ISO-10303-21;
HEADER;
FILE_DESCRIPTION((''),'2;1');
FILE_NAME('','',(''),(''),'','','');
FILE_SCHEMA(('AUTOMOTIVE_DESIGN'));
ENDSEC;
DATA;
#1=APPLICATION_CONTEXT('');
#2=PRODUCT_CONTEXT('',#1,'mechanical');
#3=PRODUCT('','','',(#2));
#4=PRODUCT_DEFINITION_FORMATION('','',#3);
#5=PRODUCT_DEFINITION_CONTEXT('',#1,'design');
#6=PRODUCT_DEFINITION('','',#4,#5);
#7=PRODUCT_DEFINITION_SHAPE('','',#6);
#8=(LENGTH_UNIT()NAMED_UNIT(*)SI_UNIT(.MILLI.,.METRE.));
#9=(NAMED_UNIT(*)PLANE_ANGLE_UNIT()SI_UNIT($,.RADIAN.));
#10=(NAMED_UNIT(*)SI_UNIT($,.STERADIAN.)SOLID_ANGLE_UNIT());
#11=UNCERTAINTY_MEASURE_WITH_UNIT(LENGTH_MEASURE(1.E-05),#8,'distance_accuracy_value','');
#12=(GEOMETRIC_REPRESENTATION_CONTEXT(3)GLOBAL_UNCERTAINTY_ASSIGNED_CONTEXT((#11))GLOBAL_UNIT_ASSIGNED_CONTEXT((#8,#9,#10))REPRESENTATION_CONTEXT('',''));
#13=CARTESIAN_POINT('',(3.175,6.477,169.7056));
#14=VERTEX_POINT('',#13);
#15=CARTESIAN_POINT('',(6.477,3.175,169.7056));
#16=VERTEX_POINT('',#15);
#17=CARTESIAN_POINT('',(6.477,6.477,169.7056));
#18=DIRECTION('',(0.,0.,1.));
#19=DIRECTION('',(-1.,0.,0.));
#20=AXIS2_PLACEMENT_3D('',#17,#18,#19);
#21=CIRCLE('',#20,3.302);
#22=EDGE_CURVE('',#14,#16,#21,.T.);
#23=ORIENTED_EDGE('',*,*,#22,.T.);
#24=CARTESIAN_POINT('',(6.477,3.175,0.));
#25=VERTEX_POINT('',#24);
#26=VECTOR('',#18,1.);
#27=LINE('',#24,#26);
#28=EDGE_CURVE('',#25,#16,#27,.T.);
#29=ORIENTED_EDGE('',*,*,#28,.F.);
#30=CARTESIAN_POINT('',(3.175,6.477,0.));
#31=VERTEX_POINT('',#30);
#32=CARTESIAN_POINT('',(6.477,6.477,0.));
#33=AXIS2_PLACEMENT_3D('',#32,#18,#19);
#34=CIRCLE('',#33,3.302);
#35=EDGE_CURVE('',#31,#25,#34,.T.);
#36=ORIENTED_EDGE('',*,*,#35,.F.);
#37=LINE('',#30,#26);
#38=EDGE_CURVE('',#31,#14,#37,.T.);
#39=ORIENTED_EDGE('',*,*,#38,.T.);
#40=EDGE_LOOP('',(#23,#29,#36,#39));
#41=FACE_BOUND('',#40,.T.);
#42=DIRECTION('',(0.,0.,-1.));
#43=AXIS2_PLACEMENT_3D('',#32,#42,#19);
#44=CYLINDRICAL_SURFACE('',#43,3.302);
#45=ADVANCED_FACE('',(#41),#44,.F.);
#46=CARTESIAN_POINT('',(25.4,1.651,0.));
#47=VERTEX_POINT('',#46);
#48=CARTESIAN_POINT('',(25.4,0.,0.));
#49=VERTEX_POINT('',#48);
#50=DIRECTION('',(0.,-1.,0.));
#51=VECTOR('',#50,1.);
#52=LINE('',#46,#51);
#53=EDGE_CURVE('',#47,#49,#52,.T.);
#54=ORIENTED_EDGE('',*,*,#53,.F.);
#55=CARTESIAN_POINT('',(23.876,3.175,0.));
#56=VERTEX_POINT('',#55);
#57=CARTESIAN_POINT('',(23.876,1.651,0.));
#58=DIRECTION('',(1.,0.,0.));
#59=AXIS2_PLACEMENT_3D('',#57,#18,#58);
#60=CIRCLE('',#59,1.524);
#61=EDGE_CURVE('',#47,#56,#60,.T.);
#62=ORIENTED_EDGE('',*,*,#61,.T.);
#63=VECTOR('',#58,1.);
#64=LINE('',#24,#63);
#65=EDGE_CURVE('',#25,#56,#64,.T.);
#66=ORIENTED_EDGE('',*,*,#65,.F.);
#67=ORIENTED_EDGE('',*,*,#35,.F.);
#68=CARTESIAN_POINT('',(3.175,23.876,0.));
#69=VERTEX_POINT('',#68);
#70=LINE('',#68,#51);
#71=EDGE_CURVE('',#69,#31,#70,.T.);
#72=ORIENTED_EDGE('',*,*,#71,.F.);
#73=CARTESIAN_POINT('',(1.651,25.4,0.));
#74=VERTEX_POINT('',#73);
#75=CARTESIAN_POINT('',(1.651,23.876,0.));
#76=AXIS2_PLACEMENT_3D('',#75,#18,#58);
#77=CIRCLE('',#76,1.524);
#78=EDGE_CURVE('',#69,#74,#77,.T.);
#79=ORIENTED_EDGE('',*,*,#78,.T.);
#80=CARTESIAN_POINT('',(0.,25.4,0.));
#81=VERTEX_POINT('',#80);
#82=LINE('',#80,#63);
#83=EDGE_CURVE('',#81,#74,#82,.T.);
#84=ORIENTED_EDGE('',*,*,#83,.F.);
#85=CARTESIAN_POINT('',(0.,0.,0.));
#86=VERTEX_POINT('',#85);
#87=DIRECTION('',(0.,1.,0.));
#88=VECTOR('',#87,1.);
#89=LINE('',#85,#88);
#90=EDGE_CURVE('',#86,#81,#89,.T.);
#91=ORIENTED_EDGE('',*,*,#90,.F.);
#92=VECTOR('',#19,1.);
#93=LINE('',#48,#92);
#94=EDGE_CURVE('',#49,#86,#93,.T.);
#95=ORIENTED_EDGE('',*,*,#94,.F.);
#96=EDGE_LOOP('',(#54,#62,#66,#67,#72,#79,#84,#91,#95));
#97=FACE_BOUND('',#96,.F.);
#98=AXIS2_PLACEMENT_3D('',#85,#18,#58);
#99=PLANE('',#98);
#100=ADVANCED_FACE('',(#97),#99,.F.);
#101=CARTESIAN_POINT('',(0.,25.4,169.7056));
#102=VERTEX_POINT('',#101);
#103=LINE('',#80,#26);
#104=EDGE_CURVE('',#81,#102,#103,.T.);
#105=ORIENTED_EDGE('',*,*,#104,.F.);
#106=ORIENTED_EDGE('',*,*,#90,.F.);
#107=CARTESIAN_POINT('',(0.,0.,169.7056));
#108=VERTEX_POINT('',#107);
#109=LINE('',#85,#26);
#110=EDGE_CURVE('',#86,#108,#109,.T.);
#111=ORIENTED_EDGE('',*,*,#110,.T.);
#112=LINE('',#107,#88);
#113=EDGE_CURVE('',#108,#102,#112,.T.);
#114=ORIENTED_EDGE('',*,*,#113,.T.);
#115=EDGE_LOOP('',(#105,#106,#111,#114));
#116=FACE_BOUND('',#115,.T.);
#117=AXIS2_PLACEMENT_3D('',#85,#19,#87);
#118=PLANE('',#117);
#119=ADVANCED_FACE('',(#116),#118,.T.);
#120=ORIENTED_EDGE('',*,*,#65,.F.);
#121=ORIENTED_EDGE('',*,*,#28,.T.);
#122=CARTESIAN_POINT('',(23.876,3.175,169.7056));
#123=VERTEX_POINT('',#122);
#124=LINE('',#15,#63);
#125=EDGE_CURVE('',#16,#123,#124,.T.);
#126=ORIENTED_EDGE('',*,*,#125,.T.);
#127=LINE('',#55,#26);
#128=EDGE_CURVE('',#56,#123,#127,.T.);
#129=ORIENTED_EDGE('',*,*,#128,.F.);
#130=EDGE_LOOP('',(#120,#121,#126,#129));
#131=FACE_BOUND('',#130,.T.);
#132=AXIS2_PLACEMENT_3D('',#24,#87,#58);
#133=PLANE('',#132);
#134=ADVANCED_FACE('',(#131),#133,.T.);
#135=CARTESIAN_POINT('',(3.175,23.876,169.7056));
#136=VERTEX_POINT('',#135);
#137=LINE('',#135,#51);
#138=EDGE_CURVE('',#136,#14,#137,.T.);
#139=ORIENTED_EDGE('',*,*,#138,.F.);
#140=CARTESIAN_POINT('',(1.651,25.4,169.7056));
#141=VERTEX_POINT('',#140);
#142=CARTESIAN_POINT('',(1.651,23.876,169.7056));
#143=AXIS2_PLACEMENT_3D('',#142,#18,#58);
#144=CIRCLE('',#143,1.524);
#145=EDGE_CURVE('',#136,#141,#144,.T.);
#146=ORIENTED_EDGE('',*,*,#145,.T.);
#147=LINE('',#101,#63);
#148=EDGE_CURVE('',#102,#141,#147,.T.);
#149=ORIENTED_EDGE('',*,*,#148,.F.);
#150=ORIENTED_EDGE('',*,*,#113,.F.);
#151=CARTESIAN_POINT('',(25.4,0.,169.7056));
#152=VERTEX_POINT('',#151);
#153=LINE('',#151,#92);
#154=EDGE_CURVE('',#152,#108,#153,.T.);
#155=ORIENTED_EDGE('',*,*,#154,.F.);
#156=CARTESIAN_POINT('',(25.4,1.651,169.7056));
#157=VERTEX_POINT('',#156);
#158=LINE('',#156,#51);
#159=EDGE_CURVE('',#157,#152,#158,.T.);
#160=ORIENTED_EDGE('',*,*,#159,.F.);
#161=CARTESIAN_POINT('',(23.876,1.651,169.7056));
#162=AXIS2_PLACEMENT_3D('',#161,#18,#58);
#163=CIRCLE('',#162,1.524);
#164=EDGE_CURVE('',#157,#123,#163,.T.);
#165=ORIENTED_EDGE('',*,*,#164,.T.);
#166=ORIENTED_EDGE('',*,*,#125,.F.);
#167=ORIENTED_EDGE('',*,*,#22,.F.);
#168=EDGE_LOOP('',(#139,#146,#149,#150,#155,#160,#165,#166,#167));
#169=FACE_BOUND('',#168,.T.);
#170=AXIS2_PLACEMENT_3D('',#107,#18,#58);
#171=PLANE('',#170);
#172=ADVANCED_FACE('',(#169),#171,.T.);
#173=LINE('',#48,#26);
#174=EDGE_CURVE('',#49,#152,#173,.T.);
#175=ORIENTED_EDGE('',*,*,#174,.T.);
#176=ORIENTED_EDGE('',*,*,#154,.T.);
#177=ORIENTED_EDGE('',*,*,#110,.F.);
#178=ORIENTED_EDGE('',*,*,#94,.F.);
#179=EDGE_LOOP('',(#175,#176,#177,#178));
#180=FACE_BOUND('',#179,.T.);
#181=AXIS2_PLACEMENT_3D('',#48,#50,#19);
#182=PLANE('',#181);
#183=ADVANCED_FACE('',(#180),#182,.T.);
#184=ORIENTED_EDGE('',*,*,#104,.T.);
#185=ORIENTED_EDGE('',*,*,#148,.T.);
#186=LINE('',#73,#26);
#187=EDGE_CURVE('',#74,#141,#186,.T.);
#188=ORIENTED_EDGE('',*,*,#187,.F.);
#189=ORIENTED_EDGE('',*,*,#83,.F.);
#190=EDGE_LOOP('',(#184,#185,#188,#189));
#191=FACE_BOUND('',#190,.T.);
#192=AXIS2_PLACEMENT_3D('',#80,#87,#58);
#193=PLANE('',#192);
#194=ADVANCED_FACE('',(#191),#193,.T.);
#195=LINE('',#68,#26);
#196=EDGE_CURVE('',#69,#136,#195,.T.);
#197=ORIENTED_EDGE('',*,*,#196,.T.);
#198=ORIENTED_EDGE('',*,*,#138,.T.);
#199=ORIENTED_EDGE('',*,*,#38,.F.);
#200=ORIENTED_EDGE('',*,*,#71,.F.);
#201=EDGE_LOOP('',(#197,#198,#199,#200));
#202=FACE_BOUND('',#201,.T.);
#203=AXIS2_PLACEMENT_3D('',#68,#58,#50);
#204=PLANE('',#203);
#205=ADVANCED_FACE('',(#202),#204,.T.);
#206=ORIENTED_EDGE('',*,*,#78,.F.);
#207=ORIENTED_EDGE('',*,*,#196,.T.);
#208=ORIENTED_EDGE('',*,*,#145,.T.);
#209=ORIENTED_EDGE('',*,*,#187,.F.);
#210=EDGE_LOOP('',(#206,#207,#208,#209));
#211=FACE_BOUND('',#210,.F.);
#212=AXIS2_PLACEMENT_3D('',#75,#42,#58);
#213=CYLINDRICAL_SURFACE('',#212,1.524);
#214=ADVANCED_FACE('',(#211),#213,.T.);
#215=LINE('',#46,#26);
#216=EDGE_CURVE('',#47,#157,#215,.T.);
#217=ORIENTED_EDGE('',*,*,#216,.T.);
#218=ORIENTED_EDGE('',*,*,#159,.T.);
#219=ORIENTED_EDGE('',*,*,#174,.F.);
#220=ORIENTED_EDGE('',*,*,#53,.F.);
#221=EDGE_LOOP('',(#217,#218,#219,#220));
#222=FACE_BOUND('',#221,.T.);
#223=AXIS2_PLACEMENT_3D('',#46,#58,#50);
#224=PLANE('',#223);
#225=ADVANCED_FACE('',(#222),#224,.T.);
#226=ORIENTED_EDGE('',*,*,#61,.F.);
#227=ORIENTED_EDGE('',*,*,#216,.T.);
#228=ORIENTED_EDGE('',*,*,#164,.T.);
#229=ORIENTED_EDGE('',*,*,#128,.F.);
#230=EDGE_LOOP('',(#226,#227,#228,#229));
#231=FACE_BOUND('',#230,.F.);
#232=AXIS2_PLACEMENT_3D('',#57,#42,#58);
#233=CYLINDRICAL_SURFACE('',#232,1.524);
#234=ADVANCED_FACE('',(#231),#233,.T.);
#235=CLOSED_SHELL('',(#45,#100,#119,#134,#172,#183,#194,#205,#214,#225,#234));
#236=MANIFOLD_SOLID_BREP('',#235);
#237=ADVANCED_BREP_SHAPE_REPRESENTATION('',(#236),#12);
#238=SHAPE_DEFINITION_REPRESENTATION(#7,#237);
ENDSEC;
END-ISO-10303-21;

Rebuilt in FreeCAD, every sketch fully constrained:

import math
import FreeCAD as App
import Part
import Sketcher
from FreeCAD import Vector
Q = App.Units.Quantity

doc = App.newDocument("Part")
body = doc.addObject("PartDesign::Body", "Body")

# Sketch on XY plane
sketch1 = body.newObject("Sketcher::SketchObject", "Sketch")
sketch1.AttachmentSupport = (doc.getObject("XY_Plane"), [""])
sketch1.MapMode = "FlatFace"
sketch1.addGeometry([
    Part.LineSegment(Vector(0, 0, 0), Vector(25.4, 0, 0)),  # 0
    Part.LineSegment(Vector(25.4, 0, 0), Vector(25.4, 1.651, 0)),  # 1
    Part.ArcOfCircle(Part.Circle(Vector(23.876, 1.651, 0), Vector(0, 0, 1), 1.524), math.radians(0), math.radians(90)),  # 2
    Part.LineSegment(Vector(23.876, 3.175, 0), Vector(6.477, 3.175, 0)),  # 3
    Part.ArcOfCircle(Part.Circle(Vector(6.477, 6.477, 0), Vector(0, 0, 1), 3.302), math.radians(180), math.radians(270)),  # 4
    Part.LineSegment(Vector(3.175, 6.477, 0), Vector(3.175, 23.876, 0)),  # 5
    Part.ArcOfCircle(Part.Circle(Vector(1.651, 23.876, 0), Vector(0, 0, 1), 1.524), math.radians(0), math.radians(90)),  # 6
    Part.LineSegment(Vector(1.651, 25.4, 0), Vector(0, 25.4, 0)),  # 7
    Part.LineSegment(Vector(0, 25.4, 0), Vector(0, 0, 0)),  # 8
], False)
sketch1.addConstraint([
    Sketcher.Constraint("Coincident", 0, 2, 1, 1),
    Sketcher.Constraint("Tangent", 1, 2, 2, 1),
    Sketcher.Constraint("Tangent", 2, 2, 3, 1),
    Sketcher.Constraint("Tangent", 3, 2, 4, 2),
    Sketcher.Constraint("Tangent", 4, 1, 5, 1),
    Sketcher.Constraint("Tangent", 5, 2, 6, 1),
    Sketcher.Constraint("Tangent", 6, 2, 7, 1),
    Sketcher.Constraint("Coincident", 7, 2, 8, 1),
    Sketcher.Constraint("Coincident", 8, 2, 0, 1),
    Sketcher.Constraint("Horizontal", 0),
    Sketcher.Constraint("Vertical", 1),
    Sketcher.Constraint("Horizontal", 3),
    Sketcher.Constraint("Vertical", 5),
    Sketcher.Constraint("Horizontal", 7),
    Sketcher.Constraint("Vertical", 8),
    Sketcher.Constraint("Coincident", 8, 2, -1, 1),
    Sketcher.Constraint("Equal", 2, 6),
    Sketcher.Constraint("Equal", 7, 1),
    Sketcher.Constraint("Equal", 3, 5),
    Sketcher.Constraint("DistanceX", 0, 1, 0, 2, Q("1 in")),
    Sketcher.Constraint("Radius", 2, Q("0.06 in")),
    Sketcher.Constraint("Radius", 4, Q("0.13 in")),
    Sketcher.Constraint("DistanceY", -1, 1, 2, 2, Q("0.125 in")),
])
pad1 = body.newObject("PartDesign::Pad", "Pad")
pad1.Profile = sketch1
pad1.Length = 169.7056

doc.recompute()
